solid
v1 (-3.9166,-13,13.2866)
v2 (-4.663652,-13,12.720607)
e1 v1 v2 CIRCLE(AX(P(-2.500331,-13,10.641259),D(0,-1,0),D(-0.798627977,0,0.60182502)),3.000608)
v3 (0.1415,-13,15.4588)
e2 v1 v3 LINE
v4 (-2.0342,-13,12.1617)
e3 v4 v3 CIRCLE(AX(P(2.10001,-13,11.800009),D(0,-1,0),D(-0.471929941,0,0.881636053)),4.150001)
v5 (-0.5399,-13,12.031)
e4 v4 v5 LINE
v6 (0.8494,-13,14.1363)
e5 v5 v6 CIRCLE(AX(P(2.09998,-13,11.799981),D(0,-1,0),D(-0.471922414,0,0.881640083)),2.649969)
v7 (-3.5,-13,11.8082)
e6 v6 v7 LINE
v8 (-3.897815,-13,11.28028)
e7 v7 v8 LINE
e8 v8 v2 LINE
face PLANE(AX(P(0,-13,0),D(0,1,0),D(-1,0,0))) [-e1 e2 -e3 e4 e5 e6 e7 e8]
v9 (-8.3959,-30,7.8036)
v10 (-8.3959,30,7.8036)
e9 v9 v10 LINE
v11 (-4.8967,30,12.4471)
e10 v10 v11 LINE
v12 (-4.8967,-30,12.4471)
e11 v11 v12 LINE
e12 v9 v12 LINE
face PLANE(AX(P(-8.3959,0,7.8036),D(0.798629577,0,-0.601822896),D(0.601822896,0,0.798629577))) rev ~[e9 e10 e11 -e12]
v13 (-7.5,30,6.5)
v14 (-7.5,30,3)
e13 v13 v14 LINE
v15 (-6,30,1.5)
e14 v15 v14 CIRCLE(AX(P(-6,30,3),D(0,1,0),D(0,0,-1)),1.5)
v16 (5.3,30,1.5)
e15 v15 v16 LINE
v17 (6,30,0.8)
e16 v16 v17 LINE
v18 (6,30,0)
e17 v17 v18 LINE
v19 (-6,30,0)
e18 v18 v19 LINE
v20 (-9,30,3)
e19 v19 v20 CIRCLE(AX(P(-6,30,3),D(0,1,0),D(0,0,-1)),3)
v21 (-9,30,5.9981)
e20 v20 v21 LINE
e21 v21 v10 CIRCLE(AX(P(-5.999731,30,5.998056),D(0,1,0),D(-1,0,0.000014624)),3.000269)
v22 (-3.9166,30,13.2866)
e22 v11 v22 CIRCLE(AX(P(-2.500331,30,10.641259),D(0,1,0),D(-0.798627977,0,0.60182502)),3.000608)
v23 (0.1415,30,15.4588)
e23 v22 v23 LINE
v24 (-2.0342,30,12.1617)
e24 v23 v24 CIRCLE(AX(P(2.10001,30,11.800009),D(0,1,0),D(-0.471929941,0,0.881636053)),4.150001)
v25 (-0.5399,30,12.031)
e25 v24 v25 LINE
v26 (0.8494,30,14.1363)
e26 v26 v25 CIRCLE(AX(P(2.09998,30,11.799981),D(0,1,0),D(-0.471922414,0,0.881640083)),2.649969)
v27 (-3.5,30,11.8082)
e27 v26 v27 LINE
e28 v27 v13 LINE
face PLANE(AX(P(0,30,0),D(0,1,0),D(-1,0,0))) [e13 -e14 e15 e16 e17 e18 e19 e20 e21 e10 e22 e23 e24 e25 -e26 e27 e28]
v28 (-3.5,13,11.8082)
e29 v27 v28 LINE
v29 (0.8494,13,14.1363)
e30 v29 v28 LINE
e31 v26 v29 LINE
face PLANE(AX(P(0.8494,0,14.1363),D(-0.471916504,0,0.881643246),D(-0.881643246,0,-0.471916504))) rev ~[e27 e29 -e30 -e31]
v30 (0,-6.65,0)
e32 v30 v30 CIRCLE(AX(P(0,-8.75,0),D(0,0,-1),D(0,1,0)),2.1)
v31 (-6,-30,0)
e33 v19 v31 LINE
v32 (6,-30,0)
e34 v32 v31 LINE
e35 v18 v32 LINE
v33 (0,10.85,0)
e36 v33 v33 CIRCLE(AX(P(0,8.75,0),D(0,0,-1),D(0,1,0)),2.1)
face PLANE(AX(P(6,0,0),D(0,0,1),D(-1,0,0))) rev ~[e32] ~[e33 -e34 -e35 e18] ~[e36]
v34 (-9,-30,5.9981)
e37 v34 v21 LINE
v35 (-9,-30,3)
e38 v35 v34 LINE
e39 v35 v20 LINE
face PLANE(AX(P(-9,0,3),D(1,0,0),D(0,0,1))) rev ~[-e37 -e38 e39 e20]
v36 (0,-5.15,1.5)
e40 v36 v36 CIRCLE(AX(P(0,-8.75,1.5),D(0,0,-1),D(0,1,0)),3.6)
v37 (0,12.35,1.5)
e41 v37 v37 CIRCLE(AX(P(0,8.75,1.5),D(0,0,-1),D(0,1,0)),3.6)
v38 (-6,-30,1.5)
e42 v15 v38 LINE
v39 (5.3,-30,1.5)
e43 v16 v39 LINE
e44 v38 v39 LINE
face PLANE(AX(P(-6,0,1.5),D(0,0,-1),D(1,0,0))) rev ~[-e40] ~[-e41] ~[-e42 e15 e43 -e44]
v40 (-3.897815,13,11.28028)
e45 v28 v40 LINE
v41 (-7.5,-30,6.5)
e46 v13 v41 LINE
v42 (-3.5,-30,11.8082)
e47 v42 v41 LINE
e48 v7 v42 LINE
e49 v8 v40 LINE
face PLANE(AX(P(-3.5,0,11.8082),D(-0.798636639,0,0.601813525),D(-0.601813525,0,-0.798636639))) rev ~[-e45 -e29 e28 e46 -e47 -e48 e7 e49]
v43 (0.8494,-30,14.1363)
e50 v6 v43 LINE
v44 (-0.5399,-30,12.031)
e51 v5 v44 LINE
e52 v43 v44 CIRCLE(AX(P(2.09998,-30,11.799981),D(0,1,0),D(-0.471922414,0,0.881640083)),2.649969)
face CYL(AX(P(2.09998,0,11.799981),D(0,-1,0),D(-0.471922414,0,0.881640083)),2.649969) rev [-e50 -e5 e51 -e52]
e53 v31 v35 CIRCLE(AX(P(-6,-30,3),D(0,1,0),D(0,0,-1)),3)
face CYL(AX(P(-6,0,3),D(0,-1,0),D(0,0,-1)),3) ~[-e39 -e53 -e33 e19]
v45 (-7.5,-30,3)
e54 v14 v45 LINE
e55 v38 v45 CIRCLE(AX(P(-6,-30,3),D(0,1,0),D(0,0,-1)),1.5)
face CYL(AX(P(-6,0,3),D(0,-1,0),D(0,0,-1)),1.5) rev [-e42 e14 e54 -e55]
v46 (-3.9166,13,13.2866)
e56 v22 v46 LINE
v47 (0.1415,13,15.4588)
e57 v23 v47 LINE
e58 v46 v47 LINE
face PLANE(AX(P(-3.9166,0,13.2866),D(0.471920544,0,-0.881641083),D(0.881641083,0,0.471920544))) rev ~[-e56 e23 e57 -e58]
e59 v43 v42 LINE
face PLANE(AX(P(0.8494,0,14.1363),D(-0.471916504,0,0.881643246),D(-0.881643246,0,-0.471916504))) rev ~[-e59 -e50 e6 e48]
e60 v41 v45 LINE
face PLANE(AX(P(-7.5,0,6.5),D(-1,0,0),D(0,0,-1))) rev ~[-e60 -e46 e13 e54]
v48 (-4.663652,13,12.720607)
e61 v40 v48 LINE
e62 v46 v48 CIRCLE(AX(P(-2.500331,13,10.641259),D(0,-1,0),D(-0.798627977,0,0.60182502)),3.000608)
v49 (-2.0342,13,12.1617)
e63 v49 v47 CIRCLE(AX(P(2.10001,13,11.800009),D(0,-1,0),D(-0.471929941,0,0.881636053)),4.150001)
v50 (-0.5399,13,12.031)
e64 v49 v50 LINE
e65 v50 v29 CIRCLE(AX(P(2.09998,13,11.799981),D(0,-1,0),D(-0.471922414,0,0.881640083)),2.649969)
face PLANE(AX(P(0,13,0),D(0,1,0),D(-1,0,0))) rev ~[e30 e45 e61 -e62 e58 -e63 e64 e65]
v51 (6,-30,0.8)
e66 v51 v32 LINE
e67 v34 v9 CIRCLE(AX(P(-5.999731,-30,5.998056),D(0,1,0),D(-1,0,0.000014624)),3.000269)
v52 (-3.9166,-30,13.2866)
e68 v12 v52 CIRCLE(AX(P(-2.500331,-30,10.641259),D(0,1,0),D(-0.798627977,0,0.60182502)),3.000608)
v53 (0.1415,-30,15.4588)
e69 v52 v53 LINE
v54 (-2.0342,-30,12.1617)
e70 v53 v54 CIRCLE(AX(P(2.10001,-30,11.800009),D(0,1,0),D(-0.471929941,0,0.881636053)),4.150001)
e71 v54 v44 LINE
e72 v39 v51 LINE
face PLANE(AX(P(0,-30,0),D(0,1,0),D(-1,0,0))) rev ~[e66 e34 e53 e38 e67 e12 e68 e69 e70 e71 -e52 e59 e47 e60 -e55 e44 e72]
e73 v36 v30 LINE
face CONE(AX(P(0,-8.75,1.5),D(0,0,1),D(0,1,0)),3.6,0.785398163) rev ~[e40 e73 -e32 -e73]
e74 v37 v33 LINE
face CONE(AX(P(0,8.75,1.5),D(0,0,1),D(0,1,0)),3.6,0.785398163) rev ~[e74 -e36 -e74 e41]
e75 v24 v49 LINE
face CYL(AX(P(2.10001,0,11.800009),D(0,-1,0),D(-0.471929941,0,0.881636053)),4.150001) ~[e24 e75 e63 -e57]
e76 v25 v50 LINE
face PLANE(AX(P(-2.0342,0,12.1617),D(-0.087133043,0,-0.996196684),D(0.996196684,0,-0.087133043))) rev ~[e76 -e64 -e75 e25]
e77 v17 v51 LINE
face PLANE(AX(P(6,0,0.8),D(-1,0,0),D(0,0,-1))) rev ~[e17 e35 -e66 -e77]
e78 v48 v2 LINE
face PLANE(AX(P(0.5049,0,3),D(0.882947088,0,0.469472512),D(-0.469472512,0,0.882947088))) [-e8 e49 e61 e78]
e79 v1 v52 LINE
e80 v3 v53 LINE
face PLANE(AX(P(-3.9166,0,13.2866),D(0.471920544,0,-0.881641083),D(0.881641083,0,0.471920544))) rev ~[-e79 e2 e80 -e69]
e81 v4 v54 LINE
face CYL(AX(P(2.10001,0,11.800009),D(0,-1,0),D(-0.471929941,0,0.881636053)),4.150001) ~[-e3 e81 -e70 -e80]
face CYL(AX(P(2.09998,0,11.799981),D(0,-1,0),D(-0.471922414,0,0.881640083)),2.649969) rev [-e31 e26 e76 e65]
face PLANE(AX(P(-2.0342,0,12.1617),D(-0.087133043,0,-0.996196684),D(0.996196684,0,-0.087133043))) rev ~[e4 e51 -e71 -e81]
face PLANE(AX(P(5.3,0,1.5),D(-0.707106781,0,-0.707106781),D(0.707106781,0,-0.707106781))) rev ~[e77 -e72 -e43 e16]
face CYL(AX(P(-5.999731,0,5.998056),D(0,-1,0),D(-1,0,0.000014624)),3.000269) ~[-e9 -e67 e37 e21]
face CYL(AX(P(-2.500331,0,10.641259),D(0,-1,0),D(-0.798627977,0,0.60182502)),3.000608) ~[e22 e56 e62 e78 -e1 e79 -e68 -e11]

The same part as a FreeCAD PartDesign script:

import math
import FreeCAD as App
import Part
import Sketcher
from FreeCAD import Vector
Q = App.Units.Quantity


def add_polygon(sketch, points):
    """Adds a closed chain of lines whose ends are joined by coincident constraints."""
    first, n = sketch.GeometryCount, len(points)
    for a, b in zip(points, points[1:] + points[:1]):
        sketch.addGeometry(Part.LineSegment(App.Vector(*a, 0), App.Vector(*b, 0)), False)
    for i in range(n):
        sketch.addConstraint(Sketcher.Constraint("Coincident", first + i, 2, first + (i + 1) % n, 1))

doc = App.newDocument("Part")
body = doc.addObject("PartDesign::Body", "Body")

# Sketch on XZ plane
sketch1 = body.newObject("Sketcher::SketchObject", "Sketch")
sketch1.AttachmentSupport = (doc.getObject("XZ_Plane"), [""])
sketch1.MapMode = "FlatFace"
sketch1.addGeometry([
    Part.ArcOfCircle(Part.Circle(Vector(-6, 3, 0), Vector(0, 0, 1), 3), math.radians(180), math.radians(270)),  # 0
    Part.LineSegment(Vector(-9, 3, 0), Vector(-9, 6, 0)),  # 1
    Part.ArcOfCircle(Part.Circle(Vector(-6, 6, 0), Vector(0, 0, 1), 3), math.radians(143), math.radians(180)),  # 2
    Part.LineSegment(Vector(-8.4, 7.8, 0), Vector(-4.9, 12.4, 0)),  # 3
    Part.ArcOfCircle(Part.Circle(Vector(-2.5, 10.6, 0), Vector(0, 0, 1), 3), math.radians(118), math.radians(143)),  # 4
    Part.LineSegment(Vector(-3.9, 13.3, 0), Vector(0.1, 15.5, 0)),  # 5
    Part.ArcOfCircle(Part.Circle(Vector(2.1, 11.8, 0), Vector(0, 0, 1), 4.2), math.radians(175), math.radians(478)),  # 6
    Part.LineSegment(Vector(-2, 12.2, 0), Vector(-0.5, 12, 0)),  # 7
    Part.ArcOfCircle(Part.Circle(Vector(2.1, 11.8, 0), Vector(0, 0, 1), 2.6), math.radians(175), math.radians(478)),  # 8
    Part.LineSegment(Vector(0.8, 14.1, 0), Vector(-3.5, 11.8, 0)),  # 9
    Part.LineSegment(Vector(-3.5, 11.8, 0), Vector(-7.5, 6.5, 0)),  # 10
    Part.LineSegment(Vector(-7.5, 6.5, 0), Vector(-7.5, 3, 0)),  # 11
    Part.ArcOfCircle(Part.Circle(Vector(-6, 3, 0), Vector(0, 0, 1), 1.5), math.radians(180), math.radians(270)),  # 12
    Part.LineSegment(Vector(-6, 1.5, 0), Vector(5.3, 1.5, 0)),  # 13
    Part.LineSegment(Vector(5.3, 1.5, 0), Vector(6, 0.8, 0)),  # 14
    Part.LineSegment(Vector(6, 0.8, 0), Vector(6, 0, 0)),  # 15
    Part.LineSegment(Vector(6, 0, 0), Vector(-6, 0, 0)),  # 16
], False)
sketch1.addConstraint([
    Sketcher.Constraint("Tangent", 0, 1, 1, 1),
    Sketcher.Constraint("Tangent", 1, 2, 2, 2),
    Sketcher.Constraint("Tangent", 2, 1, 3, 1),
    Sketcher.Constraint("Tangent", 3, 2, 4, 2),
    Sketcher.Constraint("Tangent", 4, 1, 5, 1),
    Sketcher.Constraint("Tangent", 5, 2, 6, 2),
    Sketcher.Constraint("Coincident", 6, 1, 7, 1),
    Sketcher.Constraint("Coincident", 7, 2, 8, 1),
    Sketcher.Constraint("Tangent", 8, 2, 9, 1),
    Sketcher.Constraint("Coincident", 9, 2, 10, 1),
    Sketcher.Constraint("Coincident", 10, 2, 11, 1),
    Sketcher.Constraint("Tangent", 11, 2, 12, 1),
    Sketcher.Constraint("Tangent", 12, 2, 13, 1),
    Sketcher.Constraint("Coincident", 13, 2, 14, 1),
    Sketcher.Constraint("Coincident", 14, 2, 15, 1),
    Sketcher.Constraint("Coincident", 15, 2, 16, 1),
    Sketcher.Constraint("Tangent", 16, 2, 0, 2),
    Sketcher.Constraint("Vertical", 1),
    Sketcher.Constraint("Vertical", 11),
    Sketcher.Constraint("Horizontal", 13),
    Sketcher.Constraint("Vertical", 15),
    Sketcher.Constraint("Horizontal", 16),
    Sketcher.Constraint("Coincident", 8, 3, 6, 3),
    Sketcher.Constraint("Coincident", 12, 3, 0, 3),
    Sketcher.Constraint("Equal", 0, 2),
    Sketcher.Constraint("Equal", 2, 4),
    Sketcher.Constraint("Symmetric", 15, 2, 16, 2, -1, 1),
    Sketcher.Constraint("Parallel", 5, 9),
    Sketcher.Constraint("Parallel", 3, 10),
    Sketcher.Constraint("Radius", 0, Q("3 mm")),
    Sketcher.Constraint("Radius", 12, Q("1.5 mm")),
    Sketcher.Constraint("DistanceX", 16, 2, 16, 1, Q("12 mm")),
    Sketcher.Constraint("Angle", 3, Q("52.9994 deg")),
    Sketcher.Constraint("Angle", 14, Q("-45 deg")),
    Sketcher.Constraint("Radius", 6, Q("4.15 mm")),
    Sketcher.Constraint("Radius", 8, Q("2.65 mm")),
    Sketcher.Constraint("DistanceX", 13, 1, 13, 2, Q("11.3 mm")),
    Sketcher.Constraint("DistanceY", 11, 2, 11, 1, Q("3.5 mm")),
    Sketcher.Constraint("DistanceY", 14, 2, 6, 3, Q("11 mm")),
    Sketcher.Constraint("DistanceX", -1, 1, 6, 3, Q("2.1 mm")),
    Sketcher.Constraint("DistanceX", 9, 2, -1, 1, Q("3.5 mm")),
    Sketcher.Constraint("DistanceY", 1, 1, 1, 2, Q("2.998 mm")),
    Sketcher.Constraint("DistanceX", 7, 2, -1, 1, Q("0.54 mm")),
    Sketcher.Constraint("DistanceY", 4, 3, 6, 1, Q("1.52 mm")),
])
pad1 = body.newObject("PartDesign::Pad", "Pad")
pad1.Profile = sketch1
pad1.Length = 60
pad1.Midplane = True

# Sketch on YZ plane
sketch2 = body.newObject("Sketcher::SketchObject", "Sketch001")
sketch2.AttachmentSupport = (doc.getObject("YZ_Plane"), [""])
sketch2.MapMode = "FlatFace"
add_polygon(sketch2, [(8.8, 1.5), (8.8, 0), (10.8, 0), (12.3, 1.5)])  # lines 0-3
sketch2.addGeometry(Part.LineSegment(Vector(8.8, 1.5, 0), Vector(8.8, 0, 0)), True)  # axis
sketch2.addConstraint([
    Sketcher.Constraint("Vertical", 0),
    Sketcher.Constraint("Horizontal", 1),
    Sketcher.Constraint("Horizontal", 3),
    Sketcher.Constraint("Vertical", 4),
    Sketcher.Constraint("Coincident", 4, 1, 3, 2),
    Sketcher.Constraint("PointOnObject", 0, 2, -1),
    Sketcher.Constraint("PointOnObject", 4, 2, -1),
    Sketcher.Constraint("Angle", 2, Q("45 deg")),
    Sketcher.Constraint("DistanceX", 1, 1, 1, 2, Q("2.1 mm")),
    Sketcher.Constraint("DistanceX", 3, 2, 3, 1, Q("3.6 mm")),
    Sketcher.Constraint("DistanceX", -1, 1, 0, 2, Q("8.75 mm")),
])
groove = body.newObject("PartDesign::Groove", "Groove")
groove.Profile = sketch2
groove.ReferenceAxis = (sketch2, ["Axis0"])
groove.Angle = 360

# Sketch on YZ plane
sketch3 = body.newObject("Sketcher::SketchObject", "Sketch002")
sketch3.AttachmentSupport = (doc.getObject("YZ_Plane"), [""])
sketch3.MapMode = "FlatFace"
add_polygon(sketch3, [(-8.8, 1.5), (-8.8, 0), (-6.7, 0), (-5.2, 1.5)])  # lines 0-3
sketch3.addGeometry(Part.LineSegment(Vector(-8.8, 1.5, 0), Vector(-8.8, 0, 0)), True)  # axis
sketch3.addConstraint([
    Sketcher.Constraint("Vertical", 0),
    Sketcher.Constraint("Horizontal", 1),
    Sketcher.Constraint("Horizontal", 3),
    Sketcher.Constraint("Vertical", 4),
    Sketcher.Constraint("Coincident", 4, 1, 3, 2),
    Sketcher.Constraint("PointOnObject", 0, 2, -1),
    Sketcher.Constraint("PointOnObject", 4, 2, -1),
    Sketcher.Constraint("Angle", 2, Q("45 deg")),
    Sketcher.Constraint("DistanceX", 1, 1, 1, 2, Q("2.1 mm")),
    Sketcher.Constraint("DistanceX", 3, 2, 3, 1, Q("3.6 mm")),
    Sketcher.Constraint("DistanceX", 0, 2, -1, 1, Q("8.75 mm")),
])
groove2 = body.newObject("PartDesign::Groove", "Groove001")
groove2.Profile = sketch3
groove2.ReferenceAxis = (sketch3, ["Axis0"])
groove2.Angle = 360

# Sketch on XZ plane
sketch4 = body.newObject("Sketcher::SketchObject", "Sketch003")
sketch4.AttachmentSupport = (doc.getObject("XZ_Plane"), [""])
sketch4.MapMode = "FlatFace"
add_polygon(sketch4, [(1, 3), (-19, 40), (42, 40), (42, 3)])  # lines 0-3
sketch4.addConstraint([
    Sketcher.Constraint("Horizontal", 1),
    Sketcher.Constraint("Vertical", 2),
    Sketcher.Constraint("Horizontal", 3),
    Sketcher.Constraint("DistanceY", 2, 2, 2, 1, Q("37 mm")),
    Sketcher.Constraint("Angle", 0, Q("118 deg")),
    Sketcher.Constraint("DistanceY", -1, 1, 0, 2, Q("40 mm")),
    Sketcher.Constraint("DistanceX", -1, 1, 1, 2, Q("42.1 mm")),
    Sketcher.Constraint("DistanceX", 3, 2, 3, 1, Q("41.595 mm")),
])
pocket1 = body.newObject("PartDesign::Pocket", "Pocket")
pocket1.Profile = sketch4
pocket1.Length = 26
pocket1.Midplane = True

doc.recompute()
